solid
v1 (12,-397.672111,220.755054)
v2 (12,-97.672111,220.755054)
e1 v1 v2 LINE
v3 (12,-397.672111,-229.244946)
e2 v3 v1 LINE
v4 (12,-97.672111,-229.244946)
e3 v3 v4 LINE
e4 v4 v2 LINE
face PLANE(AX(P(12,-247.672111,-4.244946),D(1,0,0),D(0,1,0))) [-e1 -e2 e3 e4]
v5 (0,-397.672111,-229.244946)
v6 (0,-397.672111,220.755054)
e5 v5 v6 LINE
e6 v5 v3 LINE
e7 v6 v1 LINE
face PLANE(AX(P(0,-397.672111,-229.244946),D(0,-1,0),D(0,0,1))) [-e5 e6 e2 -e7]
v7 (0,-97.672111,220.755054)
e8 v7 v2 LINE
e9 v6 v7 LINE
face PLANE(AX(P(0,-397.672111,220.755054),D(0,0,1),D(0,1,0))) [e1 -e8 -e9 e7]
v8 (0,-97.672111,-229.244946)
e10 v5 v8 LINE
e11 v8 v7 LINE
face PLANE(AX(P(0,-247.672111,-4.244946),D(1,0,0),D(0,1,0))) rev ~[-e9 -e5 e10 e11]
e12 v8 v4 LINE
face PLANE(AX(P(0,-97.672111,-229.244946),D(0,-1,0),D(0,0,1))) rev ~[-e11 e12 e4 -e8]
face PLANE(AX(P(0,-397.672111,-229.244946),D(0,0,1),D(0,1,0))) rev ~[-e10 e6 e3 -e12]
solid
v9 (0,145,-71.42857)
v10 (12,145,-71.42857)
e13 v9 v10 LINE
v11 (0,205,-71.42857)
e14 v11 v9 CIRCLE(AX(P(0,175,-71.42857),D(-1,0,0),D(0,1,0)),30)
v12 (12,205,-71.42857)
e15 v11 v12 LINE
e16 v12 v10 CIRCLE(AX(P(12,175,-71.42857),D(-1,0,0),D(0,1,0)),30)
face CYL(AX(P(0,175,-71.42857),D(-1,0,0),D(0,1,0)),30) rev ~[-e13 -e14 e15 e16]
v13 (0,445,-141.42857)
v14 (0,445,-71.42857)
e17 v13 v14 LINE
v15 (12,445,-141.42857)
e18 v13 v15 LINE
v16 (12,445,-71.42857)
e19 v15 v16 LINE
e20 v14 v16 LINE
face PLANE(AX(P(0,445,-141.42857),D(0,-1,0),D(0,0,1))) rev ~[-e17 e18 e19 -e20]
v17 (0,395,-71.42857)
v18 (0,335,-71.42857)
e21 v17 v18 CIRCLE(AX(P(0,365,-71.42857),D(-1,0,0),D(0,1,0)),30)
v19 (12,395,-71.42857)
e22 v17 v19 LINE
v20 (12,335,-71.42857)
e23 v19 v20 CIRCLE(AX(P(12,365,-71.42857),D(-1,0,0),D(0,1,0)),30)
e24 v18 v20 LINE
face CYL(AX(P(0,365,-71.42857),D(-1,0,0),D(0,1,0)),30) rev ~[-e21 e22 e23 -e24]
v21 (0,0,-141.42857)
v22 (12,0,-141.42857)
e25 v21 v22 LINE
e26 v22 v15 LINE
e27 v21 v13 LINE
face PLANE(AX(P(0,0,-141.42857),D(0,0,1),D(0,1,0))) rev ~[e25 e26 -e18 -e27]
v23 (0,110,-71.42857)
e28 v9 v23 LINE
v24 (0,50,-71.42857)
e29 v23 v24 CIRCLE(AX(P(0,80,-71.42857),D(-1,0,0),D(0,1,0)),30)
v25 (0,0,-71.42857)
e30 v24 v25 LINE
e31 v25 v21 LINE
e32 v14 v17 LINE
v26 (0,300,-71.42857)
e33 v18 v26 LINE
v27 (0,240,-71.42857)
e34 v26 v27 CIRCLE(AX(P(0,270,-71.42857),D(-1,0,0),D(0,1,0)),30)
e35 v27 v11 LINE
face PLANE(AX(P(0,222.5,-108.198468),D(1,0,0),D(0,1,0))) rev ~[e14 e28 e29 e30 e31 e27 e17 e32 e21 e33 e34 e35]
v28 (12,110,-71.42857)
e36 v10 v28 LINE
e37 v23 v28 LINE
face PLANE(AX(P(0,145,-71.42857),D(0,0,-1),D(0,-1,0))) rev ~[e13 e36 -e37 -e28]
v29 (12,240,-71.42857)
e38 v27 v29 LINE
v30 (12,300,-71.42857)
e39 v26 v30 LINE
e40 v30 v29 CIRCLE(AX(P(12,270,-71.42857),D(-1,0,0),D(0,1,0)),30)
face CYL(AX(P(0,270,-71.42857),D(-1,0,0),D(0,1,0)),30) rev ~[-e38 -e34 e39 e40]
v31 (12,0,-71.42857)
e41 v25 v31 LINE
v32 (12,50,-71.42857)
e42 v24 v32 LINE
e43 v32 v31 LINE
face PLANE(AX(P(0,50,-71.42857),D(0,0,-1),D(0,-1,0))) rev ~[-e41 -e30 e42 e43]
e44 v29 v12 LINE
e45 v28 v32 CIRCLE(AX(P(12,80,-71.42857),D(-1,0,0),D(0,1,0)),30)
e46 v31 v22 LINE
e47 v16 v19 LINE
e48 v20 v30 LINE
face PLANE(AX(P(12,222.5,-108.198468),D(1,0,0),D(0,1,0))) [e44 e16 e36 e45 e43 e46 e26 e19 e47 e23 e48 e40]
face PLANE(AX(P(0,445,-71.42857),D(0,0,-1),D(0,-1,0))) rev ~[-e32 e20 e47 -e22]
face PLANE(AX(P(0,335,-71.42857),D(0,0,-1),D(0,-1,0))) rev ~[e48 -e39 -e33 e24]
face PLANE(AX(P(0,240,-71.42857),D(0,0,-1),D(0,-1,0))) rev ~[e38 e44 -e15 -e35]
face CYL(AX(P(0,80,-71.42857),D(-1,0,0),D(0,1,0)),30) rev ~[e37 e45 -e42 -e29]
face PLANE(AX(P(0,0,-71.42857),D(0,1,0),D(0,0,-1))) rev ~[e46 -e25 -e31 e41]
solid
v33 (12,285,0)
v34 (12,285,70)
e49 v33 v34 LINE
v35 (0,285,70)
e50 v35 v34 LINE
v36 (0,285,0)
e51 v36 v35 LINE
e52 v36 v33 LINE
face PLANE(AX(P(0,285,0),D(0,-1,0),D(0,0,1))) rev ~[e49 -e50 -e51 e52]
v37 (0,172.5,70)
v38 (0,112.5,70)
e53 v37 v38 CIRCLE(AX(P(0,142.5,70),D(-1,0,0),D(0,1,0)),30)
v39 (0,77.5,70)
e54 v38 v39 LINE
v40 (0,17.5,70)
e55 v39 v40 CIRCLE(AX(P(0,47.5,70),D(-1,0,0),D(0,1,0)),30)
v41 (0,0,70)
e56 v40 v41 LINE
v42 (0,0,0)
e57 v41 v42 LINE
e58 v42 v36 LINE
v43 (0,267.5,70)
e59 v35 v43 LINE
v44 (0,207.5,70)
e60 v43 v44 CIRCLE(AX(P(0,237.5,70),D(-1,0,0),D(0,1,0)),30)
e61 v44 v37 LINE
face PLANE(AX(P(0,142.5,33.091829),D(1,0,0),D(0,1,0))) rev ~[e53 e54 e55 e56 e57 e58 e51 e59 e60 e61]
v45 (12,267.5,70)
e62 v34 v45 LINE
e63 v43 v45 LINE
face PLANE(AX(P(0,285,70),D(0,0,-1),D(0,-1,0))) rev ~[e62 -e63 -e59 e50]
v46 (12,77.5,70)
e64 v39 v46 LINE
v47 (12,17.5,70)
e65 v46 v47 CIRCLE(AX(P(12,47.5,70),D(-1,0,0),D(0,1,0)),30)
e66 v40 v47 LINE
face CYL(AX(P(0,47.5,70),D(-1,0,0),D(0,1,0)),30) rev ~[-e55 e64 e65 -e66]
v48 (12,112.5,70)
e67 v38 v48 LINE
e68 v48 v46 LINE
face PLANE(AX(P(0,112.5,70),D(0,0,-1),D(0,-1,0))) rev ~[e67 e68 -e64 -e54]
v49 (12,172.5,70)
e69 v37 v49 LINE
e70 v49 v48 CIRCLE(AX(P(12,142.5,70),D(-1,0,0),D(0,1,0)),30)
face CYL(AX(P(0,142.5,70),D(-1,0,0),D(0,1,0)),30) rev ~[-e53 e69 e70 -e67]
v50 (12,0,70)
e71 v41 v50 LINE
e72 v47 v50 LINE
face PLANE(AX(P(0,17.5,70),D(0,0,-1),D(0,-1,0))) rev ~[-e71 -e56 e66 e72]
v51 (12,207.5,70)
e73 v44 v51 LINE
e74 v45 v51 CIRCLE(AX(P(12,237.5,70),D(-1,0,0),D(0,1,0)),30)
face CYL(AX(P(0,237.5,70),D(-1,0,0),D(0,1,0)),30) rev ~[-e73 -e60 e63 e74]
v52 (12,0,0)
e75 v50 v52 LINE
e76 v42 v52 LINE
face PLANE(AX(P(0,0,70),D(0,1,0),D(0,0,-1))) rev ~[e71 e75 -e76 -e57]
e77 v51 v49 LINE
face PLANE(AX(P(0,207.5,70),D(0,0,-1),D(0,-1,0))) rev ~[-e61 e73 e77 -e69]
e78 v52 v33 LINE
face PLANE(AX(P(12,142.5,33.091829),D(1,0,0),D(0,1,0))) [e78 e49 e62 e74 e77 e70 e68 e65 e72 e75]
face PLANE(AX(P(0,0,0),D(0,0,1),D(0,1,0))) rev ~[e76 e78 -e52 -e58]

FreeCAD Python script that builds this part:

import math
import FreeCAD as App
import Part
import Sketcher

V = App.Vector
Q = App.Units.Quantity

doc = App.newDocument("Part")
body = doc.addObject("PartDesign::Body", "Body")

# Sketch on YZ plane
sketch1 = body.newObject("Sketcher::SketchObject", "Sketch")
sketch1.AttachmentSupport = (doc.getObject("YZ_Plane"), [""])
sketch1.MapMode = "FlatFace"
sketch1.addGeometry([
    Part.LineSegment(V(0, 70, 0), V(0, 0, 0)),  # 0
    Part.LineSegment(V(0, 0, 0), V(285, 0, 0)),  # 1
    Part.LineSegment(V(285, 0, 0), V(285, 70, 0)),  # 2
    Part.LineSegment(V(285, 70, 0), V(268, 70, 0)),  # 3
    Part.ArcOfCircle(Part.Circle(V(238, 70, 0), V(0, 0, 1), 30), math.radians(180), math.radians(360)),  # 4
    Part.LineSegment(V(208, 70, 0), V(172, 70, 0)),  # 5
    Part.ArcOfCircle(Part.Circle(V(142, 70, 0), V(0, 0, 1), 30), math.radians(180), math.radians(360)),  # 6
    Part.LineSegment(V(112, 70, 0), V(78, 70, 0)),  # 7
    Part.ArcOfCircle(Part.Circle(V(48, 70, 0), V(0, 0, 1), 30), math.radians(180), math.radians(360)),  # 8
    Part.LineSegment(V(18, 70, 0), V(0, 70, 0)),  # 9
], False)
sketch1.addConstraint([
    Sketcher.Constraint("Coincident", 0, 2, 1, 1),
    Sketcher.Constraint("Coincident", 1, 2, 2, 1),
    Sketcher.Constraint("Coincident", 2, 2, 3, 1),
    Sketcher.Constraint("Coincident", 3, 2, 4, 2),
    Sketcher.Constraint("Coincident", 4, 1, 5, 1),
    Sketcher.Constraint("Coincident", 5, 2, 6, 2),
    Sketcher.Constraint("Coincident", 6, 1, 7, 1),
    Sketcher.Constraint("Coincident", 7, 2, 8, 2),
    Sketcher.Constraint("Coincident", 8, 1, 9, 1),
    Sketcher.Constraint("Coincident", 9, 2, 0, 1),
    Sketcher.Constraint("Vertical", 0),
    Sketcher.Constraint("Horizontal", 1),
    Sketcher.Constraint("Vertical", 2),
    Sketcher.Constraint("Horizontal", 3),
    Sketcher.Constraint("Horizontal", 5),
    Sketcher.Constraint("Horizontal", 7),
    Sketcher.Constraint("Horizontal", 9),
    Sketcher.Constraint("Coincident", 0, 2, -1, 1),
    Sketcher.Constraint("Equal", 4, 6),
    Sketcher.Constraint("Equal", 6, 8),
    Sketcher.Constraint("Horizontal", 4, 3, 6, 3),
    Sketcher.Constraint("Horizontal", 6, 3, 8, 3),
    Sketcher.Constraint("Horizontal", 8, 3, 2, 2),
    Sketcher.Constraint("Horizontal", 3, 2, 4, 1),
    Sketcher.Constraint("Horizontal", 5, 2, 6, 1),
    Sketcher.Constraint("Horizontal", 7, 2, 8, 1),
    Sketcher.Constraint("Equal", 5, 7),
    Sketcher.Constraint("Equal", 3, 9),
    Sketcher.Constraint("Radius", 4, Q("30 mm")),
    Sketcher.Constraint("DistanceX", 1, 1, 1, 2, Q("285 mm")),
    Sketcher.Constraint("DistanceX", 5, 2, 5, 1, Q("35 mm")),
    Sketcher.Constraint("DistanceY", 0, 2, 0, 1, Q("70 mm")),
])
pad1 = body.newObject("PartDesign::Pad", "Pad")
pad1.Profile = sketch1
pad1.Length = 12
body2 = doc.addObject("PartDesign::Body", "Body001")

# Sketch on YZ plane
sketch2 = body2.newObject("Sketcher::SketchObject", "Sketch001")
sketch2.AttachmentSupport = (doc.getObject("YZ_Plane001"), [""])
sketch2.MapMode = "FlatFace"
sketch2.addGeometry([
    Part.LineSegment(V(50, -71, 0), V(0, -71, 0)),  # 0
    Part.LineSegment(V(0, -71, 0), V(0, -141, 0)),  # 1
    Part.LineSegment(V(0, -141, 0), V(445, -141, 0)),  # 2
    Part.LineSegment(V(445, -141, 0), V(445, -71, 0)),  # 3
    Part.LineSegment(V(445, -71, 0), V(395, -71, 0)),  # 4
    Part.ArcOfCircle(Part.Circle(V(365, -71, 0), V(0, 0, 1), 30), math.radians(180), math.radians(360)),  # 5
    Part.LineSegment(V(335, -71, 0), V(300, -71, 0)),  # 6
    Part.ArcOfCircle(Part.Circle(V(270, -71, 0), V(0, 0, 1), 30), math.radians(180), math.radians(360)),  # 7
    Part.LineSegment(V(240, -71, 0), V(205, -71, 0)),  # 8
    Part.ArcOfCircle(Part.Circle(V(175, -71, 0), V(0, 0, 1), 30), math.radians(180), math.radians(360)),  # 9
    Part.LineSegment(V(145, -71, 0), V(110, -71, 0)),  # 10
    Part.ArcOfCircle(Part.Circle(V(80, -71, 0), V(0, 0, 1), 30), math.radians(180), math.radians(360)),  # 11
], False)
sketch2.addConstraint([
    Sketcher.Constraint("Coincident", 0, 2, 1, 1),
    Sketcher.Constraint("Coincident", 1, 2, 2, 1),
    Sketcher.Constraint("Coincident", 2, 2, 3, 1),
    Sketcher.Constraint("Coincident", 3, 2, 4, 1),
    Sketcher.Constraint("Coincident", 4, 2, 5, 2),
    Sketcher.Constraint("Coincident", 5, 1, 6, 1),
    Sketcher.Constraint("Coincident", 6, 2, 7, 2),
    Sketcher.Constraint("Coincident", 7, 1, 8, 1),
    Sketcher.Constraint("Coincident", 8, 2, 9, 2),
    Sketcher.Constraint("Coincident", 9, 1, 10, 1),
    Sketcher.Constraint("Coincident", 10, 2, 11, 2),
    Sketcher.Constraint("Coincident", 11, 1, 0, 1),
    Sketcher.Constraint("Horizontal", 0),
    Sketcher.Constraint("Vertical", 1),
    Sketcher.Constraint("Horizontal", 2),
    Sketcher.Constraint("Vertical", 3),
    Sketcher.Constraint("Horizontal", 4),
    Sketcher.Constraint("Horizontal", 6),
    Sketcher.Constraint("Horizontal", 8),
    Sketcher.Constraint("Horizontal", 10),
    Sketcher.Constraint("Equal", 5, 7),
    Sketcher.Constraint("Equal", 7, 9),
    Sketcher.Constraint("Equal", 9, 11),
    Sketcher.Constraint("PointOnObject", 0, 2, -2),
    Sketcher.Constraint("Horizontal", 5, 3, 7, 3),
    Sketcher.Constraint("Horizontal", 7, 3, 9, 3),
    Sketcher.Constraint("Horizontal", 9, 3, 11, 3),
    Sketcher.Constraint("Horizontal", 11, 3, 0, 2),
    Sketcher.Constraint("Horizontal", 0, 2, 3, 2),
    Sketcher.Constraint("Horizontal", 4, 2, 5, 1),
    Sketcher.Constraint("Horizontal", 6, 2, 7, 1),
    Sketcher.Constraint("Horizontal", 8, 2, 9, 1),
    Sketcher.Constraint("Equal", 0, 4),
    Sketcher.Constraint("Equal", 6, 8),
    Sketcher.Constraint("Equal", 8, 10),
    Sketcher.Constraint("Radius", 5, Q("30 mm")),
    Sketcher.Constraint("DistanceX", 0, 2, 0, 1, Q("50 mm")),
    Sketcher.Constraint("DistanceX", 2, 1, 2, 2, Q("445 mm")),
    Sketcher.Constraint("DistanceY", 1, 2, 1, 1, Q("70 mm")),
    Sketcher.Constraint("DistanceY", 5, 3, -1, 1, Q("71.42857 mm")),
])
pad2 = body2.newObject("PartDesign::Pad", "Pad001")
pad2.Profile = sketch2
pad2.Length = 12
body3 = doc.addObject("PartDesign::Body", "Body002")

# Sketch on YZ plane
sketch3 = body3.newObject("Sketcher::SketchObject", "Sketch002")
sketch3.AttachmentSupport = (doc.getObject("YZ_Plane002"), [""])
sketch3.MapMode = "FlatFace"
sketch3.addGeometry([
    Part.LineSegment(V(-398, 221, 0), V(-398, -229, 0)),
    Part.LineSegment(V(-398, -229, 0), V(-98, -229, 0)),
    Part.LineSegment(V(-98, -229, 0), V(-98, 221, 0)),
    Part.LineSegment(V(-98, 221, 0), V(-398, 221, 0)),
], False)
sketch3.addConstraint([
    Sketcher.Constraint("Coincident", 0, 2, 1, 1),
    Sketcher.Constraint("Coincident", 1, 2, 2, 1),
    Sketcher.Constraint("Coincident", 2, 2, 3, 1),
    Sketcher.Constraint("Coincident", 3, 2, 0, 1),
    Sketcher.Constraint("Vertical", 0),
    Sketcher.Constraint("Horizontal", 1),
    Sketcher.Constraint("Vertical", 2),
    Sketcher.Constraint("Horizontal", 3),
    Sketcher.Constraint("DistanceX", 1, 1, 1, 2, Q("300 mm")),
    Sketcher.Constraint("DistanceY", 0, 2, 0, 1, Q("450 mm")),
    Sketcher.Constraint("DistanceX", 0, 2, -1, 1, Q("397.672111 mm")),
    Sketcher.Constraint("DistanceY", 0, 2, -1, 1, Q("229.244946 mm")),
])
pad3 = body3.newObject("PartDesign::Pad", "Pad002")
pad3.Profile = sketch3
pad3.Length = 12

doc.recompute()
